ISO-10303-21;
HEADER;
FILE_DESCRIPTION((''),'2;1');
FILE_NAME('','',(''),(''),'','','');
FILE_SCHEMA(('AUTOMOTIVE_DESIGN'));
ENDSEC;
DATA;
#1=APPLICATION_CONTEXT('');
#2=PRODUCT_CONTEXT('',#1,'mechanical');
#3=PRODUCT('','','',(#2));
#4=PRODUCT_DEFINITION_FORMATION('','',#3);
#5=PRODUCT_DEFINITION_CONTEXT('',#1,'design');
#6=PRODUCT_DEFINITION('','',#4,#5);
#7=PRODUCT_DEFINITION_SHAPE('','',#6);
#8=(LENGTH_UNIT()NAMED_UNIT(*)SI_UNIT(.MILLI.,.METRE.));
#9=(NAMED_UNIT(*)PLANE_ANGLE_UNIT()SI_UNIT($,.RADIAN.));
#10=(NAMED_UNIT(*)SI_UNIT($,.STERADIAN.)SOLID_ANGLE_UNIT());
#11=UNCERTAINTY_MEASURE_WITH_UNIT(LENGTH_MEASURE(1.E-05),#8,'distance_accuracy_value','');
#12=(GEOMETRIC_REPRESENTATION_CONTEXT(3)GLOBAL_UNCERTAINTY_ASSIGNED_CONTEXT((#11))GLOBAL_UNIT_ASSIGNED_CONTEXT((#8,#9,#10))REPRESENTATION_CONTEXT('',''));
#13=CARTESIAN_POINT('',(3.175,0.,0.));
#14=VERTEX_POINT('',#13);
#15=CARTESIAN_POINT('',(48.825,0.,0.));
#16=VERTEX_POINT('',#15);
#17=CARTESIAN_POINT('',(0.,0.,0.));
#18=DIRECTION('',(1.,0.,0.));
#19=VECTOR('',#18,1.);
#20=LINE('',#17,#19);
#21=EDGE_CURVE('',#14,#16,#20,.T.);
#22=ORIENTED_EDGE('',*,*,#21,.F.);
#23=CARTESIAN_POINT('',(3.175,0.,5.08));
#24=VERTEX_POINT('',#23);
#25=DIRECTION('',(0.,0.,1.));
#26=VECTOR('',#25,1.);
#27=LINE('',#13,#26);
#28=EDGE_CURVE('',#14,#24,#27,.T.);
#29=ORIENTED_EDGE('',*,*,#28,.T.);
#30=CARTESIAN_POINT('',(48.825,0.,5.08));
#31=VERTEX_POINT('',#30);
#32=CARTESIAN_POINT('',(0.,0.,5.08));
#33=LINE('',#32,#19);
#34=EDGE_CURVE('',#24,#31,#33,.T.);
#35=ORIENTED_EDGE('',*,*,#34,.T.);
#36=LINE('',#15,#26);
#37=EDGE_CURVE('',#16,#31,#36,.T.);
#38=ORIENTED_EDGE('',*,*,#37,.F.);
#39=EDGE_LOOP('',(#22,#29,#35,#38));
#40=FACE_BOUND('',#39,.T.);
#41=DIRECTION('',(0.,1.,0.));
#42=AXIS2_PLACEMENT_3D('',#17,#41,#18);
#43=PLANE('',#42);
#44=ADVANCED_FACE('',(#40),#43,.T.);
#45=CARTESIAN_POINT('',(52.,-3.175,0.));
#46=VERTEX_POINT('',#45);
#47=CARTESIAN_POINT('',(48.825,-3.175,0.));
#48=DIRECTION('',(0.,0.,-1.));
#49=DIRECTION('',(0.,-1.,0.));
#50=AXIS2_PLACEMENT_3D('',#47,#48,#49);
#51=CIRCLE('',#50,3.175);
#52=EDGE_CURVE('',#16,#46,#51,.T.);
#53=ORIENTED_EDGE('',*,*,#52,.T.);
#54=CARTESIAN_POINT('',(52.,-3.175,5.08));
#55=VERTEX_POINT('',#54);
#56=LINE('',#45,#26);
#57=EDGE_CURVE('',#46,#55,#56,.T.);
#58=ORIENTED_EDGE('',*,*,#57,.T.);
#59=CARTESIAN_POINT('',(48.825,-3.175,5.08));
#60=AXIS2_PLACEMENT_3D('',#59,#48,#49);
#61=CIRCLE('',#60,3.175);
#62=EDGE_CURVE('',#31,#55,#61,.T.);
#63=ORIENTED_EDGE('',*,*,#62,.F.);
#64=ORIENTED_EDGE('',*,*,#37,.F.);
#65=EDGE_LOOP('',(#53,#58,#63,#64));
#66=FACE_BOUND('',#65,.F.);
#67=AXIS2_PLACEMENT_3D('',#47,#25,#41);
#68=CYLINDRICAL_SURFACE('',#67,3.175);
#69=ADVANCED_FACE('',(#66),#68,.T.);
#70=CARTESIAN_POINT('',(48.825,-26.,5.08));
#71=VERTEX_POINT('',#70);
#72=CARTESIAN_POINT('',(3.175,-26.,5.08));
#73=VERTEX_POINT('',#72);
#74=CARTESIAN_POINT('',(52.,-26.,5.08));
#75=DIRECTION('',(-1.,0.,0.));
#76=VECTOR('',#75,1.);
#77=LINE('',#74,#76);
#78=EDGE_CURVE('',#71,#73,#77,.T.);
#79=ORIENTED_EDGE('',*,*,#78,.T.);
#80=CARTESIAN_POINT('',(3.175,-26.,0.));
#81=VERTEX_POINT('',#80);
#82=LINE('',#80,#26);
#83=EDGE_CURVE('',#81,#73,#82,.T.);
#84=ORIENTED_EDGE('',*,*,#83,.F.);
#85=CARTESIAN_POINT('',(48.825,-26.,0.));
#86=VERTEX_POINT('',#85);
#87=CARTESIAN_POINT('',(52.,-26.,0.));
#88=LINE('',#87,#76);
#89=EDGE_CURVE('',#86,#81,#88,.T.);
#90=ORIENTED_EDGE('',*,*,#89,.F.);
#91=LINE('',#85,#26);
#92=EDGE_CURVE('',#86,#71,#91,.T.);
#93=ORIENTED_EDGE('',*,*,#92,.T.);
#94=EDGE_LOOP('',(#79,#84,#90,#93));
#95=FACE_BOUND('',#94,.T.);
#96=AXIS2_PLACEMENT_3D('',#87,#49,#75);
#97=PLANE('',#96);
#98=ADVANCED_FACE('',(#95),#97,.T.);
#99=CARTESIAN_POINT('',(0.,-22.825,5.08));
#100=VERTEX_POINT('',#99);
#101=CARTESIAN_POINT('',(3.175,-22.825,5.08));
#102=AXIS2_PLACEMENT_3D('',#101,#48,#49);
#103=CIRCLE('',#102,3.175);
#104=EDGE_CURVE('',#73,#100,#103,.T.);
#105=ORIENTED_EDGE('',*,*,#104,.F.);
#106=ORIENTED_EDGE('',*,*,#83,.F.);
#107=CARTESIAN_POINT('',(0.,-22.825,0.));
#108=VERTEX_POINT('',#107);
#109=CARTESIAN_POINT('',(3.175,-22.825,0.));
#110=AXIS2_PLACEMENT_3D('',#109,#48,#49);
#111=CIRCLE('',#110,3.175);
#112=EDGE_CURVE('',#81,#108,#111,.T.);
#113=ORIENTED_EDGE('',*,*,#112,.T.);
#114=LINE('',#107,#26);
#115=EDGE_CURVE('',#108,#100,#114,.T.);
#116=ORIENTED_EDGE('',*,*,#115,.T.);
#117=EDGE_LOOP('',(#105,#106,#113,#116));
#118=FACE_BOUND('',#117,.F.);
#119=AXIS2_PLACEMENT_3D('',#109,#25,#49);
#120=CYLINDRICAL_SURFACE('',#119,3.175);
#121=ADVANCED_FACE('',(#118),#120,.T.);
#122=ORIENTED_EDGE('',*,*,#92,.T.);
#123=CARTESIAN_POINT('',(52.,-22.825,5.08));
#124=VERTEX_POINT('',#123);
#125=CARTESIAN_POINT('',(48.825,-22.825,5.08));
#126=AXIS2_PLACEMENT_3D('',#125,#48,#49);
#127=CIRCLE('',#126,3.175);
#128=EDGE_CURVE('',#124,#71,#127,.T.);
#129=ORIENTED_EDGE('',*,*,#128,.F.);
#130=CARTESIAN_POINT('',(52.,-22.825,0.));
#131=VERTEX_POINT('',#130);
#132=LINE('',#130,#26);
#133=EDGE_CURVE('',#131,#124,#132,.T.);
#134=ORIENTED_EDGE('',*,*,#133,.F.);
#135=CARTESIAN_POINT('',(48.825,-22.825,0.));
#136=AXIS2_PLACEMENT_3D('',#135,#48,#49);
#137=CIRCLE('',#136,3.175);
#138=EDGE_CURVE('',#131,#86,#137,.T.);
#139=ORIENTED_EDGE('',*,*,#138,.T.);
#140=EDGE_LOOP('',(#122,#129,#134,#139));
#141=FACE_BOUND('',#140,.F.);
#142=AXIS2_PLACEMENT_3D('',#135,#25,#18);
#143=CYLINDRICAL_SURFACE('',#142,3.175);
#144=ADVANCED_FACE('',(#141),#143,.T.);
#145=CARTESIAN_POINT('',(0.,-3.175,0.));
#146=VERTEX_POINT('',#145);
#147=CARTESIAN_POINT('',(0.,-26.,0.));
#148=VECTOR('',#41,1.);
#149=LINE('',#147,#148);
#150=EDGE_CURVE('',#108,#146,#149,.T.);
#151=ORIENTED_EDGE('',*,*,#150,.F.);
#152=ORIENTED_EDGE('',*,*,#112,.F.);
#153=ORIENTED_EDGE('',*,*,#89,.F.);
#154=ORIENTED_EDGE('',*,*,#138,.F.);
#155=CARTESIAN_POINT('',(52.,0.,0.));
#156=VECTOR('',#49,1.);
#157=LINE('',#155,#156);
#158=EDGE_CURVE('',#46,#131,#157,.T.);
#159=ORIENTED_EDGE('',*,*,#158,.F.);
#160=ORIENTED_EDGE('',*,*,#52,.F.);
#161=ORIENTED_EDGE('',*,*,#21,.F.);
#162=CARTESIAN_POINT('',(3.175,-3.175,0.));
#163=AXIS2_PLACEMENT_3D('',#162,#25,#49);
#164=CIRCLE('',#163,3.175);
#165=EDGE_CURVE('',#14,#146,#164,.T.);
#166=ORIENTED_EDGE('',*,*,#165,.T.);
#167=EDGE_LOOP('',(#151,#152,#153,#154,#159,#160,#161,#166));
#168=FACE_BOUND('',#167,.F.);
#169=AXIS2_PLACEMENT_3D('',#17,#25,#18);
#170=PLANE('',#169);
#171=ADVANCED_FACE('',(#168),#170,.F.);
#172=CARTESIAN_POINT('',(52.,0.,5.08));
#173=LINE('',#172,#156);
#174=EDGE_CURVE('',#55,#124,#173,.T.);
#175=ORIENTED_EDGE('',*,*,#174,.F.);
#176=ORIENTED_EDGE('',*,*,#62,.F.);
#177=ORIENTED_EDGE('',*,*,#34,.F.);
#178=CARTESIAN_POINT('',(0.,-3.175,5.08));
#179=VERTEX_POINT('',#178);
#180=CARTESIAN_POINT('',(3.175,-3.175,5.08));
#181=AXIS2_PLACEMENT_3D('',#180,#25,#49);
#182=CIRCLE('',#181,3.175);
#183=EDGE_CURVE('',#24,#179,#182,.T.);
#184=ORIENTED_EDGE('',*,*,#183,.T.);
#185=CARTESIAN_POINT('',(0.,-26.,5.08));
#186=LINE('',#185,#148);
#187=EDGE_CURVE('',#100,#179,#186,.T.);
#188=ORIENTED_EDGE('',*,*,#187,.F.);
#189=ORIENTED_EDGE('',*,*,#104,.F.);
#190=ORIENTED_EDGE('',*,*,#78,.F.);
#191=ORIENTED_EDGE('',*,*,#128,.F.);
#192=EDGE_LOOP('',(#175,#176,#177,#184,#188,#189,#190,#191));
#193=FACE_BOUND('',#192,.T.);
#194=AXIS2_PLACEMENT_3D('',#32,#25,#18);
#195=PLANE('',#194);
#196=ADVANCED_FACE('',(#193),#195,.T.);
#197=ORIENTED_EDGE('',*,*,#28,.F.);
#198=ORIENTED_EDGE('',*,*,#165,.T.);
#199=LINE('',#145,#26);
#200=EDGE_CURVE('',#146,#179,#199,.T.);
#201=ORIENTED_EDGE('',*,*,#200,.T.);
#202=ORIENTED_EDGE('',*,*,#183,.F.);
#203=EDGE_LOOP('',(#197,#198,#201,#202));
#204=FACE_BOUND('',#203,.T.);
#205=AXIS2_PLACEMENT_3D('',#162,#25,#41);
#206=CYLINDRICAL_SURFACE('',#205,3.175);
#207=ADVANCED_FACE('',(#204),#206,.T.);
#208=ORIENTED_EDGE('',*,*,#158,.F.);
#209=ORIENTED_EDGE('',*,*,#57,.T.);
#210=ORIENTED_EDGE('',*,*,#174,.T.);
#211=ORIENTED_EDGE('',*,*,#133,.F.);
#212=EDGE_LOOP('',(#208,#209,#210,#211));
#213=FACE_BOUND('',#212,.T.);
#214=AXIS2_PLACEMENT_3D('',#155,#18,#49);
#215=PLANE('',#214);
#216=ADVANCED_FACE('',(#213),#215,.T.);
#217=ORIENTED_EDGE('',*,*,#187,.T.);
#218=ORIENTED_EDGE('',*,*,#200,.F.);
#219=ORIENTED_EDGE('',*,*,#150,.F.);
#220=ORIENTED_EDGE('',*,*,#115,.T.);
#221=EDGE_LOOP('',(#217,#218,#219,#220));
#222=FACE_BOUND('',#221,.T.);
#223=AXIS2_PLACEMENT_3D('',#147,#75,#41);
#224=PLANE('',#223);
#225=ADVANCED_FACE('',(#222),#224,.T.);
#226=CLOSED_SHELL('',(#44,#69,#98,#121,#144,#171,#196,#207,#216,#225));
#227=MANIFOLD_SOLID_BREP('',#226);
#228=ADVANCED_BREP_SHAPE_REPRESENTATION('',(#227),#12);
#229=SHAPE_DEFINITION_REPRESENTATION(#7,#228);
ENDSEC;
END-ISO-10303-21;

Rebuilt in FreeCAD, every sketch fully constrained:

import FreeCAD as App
import Part
import Sketcher
from FreeCAD import Vector


def edges_at(feature, points):
    """Names of the edges that pass closest to the given points."""
    edges = feature.Shape.Edges
    near = lambda p: min(range(len(edges)), key=lambda i: edges[i].distToShape(Part.Vertex(*p))[0])
    return sorted({f"Edge{near(p) + 1}" for p in points})

doc = App.newDocument("Part")
body = doc.addObject("PartDesign::Body", "Body")

sketch1 = body.newObject("Sketcher::SketchObject", "Sketch")
sketch1.AttachmentSupport = (doc.getObject("XY_Plane"), [""])
sketch1.MapMode = "FlatFace"
sketch1.addGeometry(Part.LineSegment(Vector(52, 0, 0), Vector(0, 0, 0)), False)
sketch1.addGeometry(Part.LineSegment(Vector(0, 0, 0), Vector(0, -26, 0)), False)
sketch1.addGeometry(Part.LineSegment(Vector(0, -26, 0), Vector(52, -26, 0)), False)
sketch1.addGeometry(Part.LineSegment(Vector(52, -26, 0), Vector(52, 0, 0)), False)
sketch1.addConstraint(Sketcher.Constraint("Coincident", 0, 2, 1, 1))
sketch1.addConstraint(Sketcher.Constraint("Coincident", 1, 2, 2, 1))
sketch1.addConstraint(Sketcher.Constraint("Coincident", 2, 2, 3, 1))
sketch1.addConstraint(Sketcher.Constraint("Coincident", 3, 2, 0, 1))
sketch1.addConstraint(Sketcher.Constraint("Horizontal", 0))
sketch1.addConstraint(Sketcher.Constraint("Vertical", 1))
sketch1.addConstraint(Sketcher.Constraint("Horizontal", 2))
sketch1.addConstraint(Sketcher.Constraint("Vertical", 3))
sketch1.addConstraint(Sketcher.Constraint("Coincident", 0, 2, -1, 1))
sketch1.addConstraint(Sketcher.Constraint("DistanceX", 0, 2, 0, 1, 52.0))
sketch1.addConstraint(Sketcher.Constraint("DistanceY", 1, 2, 1, 1, 26.0))
pad1 = body.newObject("PartDesign::Pad", "Pad")
pad1.Profile = sketch1
pad1.Length = 5.08
doc.recompute()

fillet = body.newObject("PartDesign::Fillet", "Fillet")
fillet.Base = (pad1, edges_at(pad1, [
    (52, 0, 2.54),
    (0, 0, 2.54),
    (52, -26, 2.54),
    (0, -26, 2.54),
]))
fillet.Radius = 3.175

doc.recompute()
